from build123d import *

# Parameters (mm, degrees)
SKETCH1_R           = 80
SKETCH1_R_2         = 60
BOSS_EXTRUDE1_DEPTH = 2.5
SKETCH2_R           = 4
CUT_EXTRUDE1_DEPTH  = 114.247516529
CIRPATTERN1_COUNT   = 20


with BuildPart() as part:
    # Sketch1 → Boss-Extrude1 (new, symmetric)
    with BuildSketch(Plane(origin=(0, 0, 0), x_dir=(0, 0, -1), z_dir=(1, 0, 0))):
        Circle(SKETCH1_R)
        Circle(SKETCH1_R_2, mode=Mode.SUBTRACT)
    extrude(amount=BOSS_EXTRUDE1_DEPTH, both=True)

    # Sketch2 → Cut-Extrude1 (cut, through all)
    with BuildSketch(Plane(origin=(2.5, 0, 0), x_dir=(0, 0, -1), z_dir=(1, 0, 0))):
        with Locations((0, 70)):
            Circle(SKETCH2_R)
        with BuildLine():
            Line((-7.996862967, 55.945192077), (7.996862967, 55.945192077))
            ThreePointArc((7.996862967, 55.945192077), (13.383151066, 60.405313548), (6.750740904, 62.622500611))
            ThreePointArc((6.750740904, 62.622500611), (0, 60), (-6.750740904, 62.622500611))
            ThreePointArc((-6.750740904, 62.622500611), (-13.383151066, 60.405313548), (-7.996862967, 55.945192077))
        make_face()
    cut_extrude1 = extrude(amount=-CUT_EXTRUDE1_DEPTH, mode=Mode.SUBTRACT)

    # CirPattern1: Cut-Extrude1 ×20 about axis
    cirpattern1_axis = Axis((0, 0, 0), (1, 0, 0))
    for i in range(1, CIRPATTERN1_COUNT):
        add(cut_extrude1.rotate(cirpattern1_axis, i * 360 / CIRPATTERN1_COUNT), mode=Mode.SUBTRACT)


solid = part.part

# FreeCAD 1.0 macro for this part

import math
import FreeCAD as App
import Part
import Sketcher

V = App.Vector

doc = App.newDocument("Part")
body = doc.addObject("PartDesign::Body", "Body")

sketch1 = doc.addObject("Sketcher::SketchObject", "Sketch")
body.addObject(sketch1)
sketch1.AttachmentSupport = (doc.YZ_Plane, [""])
sketch1.MapMode = "FlatFace"
sketch1.addGeometry([
    Part.Circle(V(0, 0, 0), V(0, 0, 1), 80),
    Part.Circle(V(0, 0, 0), V(0, 0, 1), 60),
], False)
sketch1.addConstraint([
    Sketcher.Constraint("Coincident", 0, 3, -1, 1),
    Sketcher.Constraint("Coincident", 1, 3, -1, 1),
    Sketcher.Constraint("Diameter", 0, 160.0),
    Sketcher.Constraint("Diameter", 1, 120.0),
])
pad1 = doc.addObject("PartDesign::Pad", "Pad")
body.addObject(pad1)
pad1.Profile = sketch1
pad1.Length = 5
pad1.Midplane = True

sketch2 = doc.addObject("Sketcher::SketchObject", "Sketch001")
body.addObject(sketch2)
sketch2.AttachmentSupport = (doc.YZ_Plane, [""])
sketch2.MapMode = "FlatFace"
sketch2.AttachmentOffset = App.Placement(V(0, 0, 2.5), App.Rotation())
sketch2.addGeometry([
    Part.Circle(V(70, 0, 0), V(0, 0, 1), 4),
    Part.LineSegment(V(55.945192, 7.996863, 0), V(55.945192, -7.996863, 0)),
    Part.ArcOfCircle(Part.Circle(V(59.671501, -9.451037, 0), V(0, 0, 1), 4), math.radians(158.682021), math.radians(402.459904)),
    Part.ArcOfCircle(Part.Circle(V(70, 0, 0), V(0, 0, 1), 10), math.radians(137.540096), math.radians(222.459904)),
    Part.ArcOfCircle(Part.Circle(V(59.671501, 9.451037, 0), V(0, 0, 1), 4), math.radians(-42.459904), math.radians(201.317979)),
], False)
sketch2.addConstraint([
    Sketcher.Constraint("Coincident", 1, 2, 2, 1),
    Sketcher.Constraint("Tangent", 2, 2, 3, 2),
    Sketcher.Constraint("Tangent", 3, 1, 4, 1),
    Sketcher.Constraint("Coincident", 4, 2, 1, 1),
    Sketcher.Constraint("Vertical", 1),
    Sketcher.Constraint("Coincident", 3, 3, 0, 3),
    Sketcher.Constraint("Equal", 0, 2),
    Sketcher.Constraint("Equal", 2, 4),
    Sketcher.Constraint("Symmetric", 2, 3, 4, 3, -1),
    Sketcher.Constraint("Diameter", 0, 8.0),
    Sketcher.Constraint("Radius", 3, 10.0),
    Sketcher.Constraint("DistanceX", -1, 1, 0, 3, 70.0),
    Sketcher.Constraint("DistanceX", 2, 3, 2, 2, 2.951),
    Sketcher.Constraint("DistanceY", 1, 2, 4, 3, 17.4479),
])
pocket1 = doc.addObject("PartDesign::Pocket", "Pocket")
body.addObject(pocket1)
pocket1.Profile = sketch2
pocket1.Type = "ThroughAll"
doc.recompute()

polarpattern = doc.addObject("PartDesign::PolarPattern", "PolarPattern")
body.addObject(polarpattern)
polarpattern.Originals = [pocket1]
polarpattern.Axis = (doc.X_Axis, [""])
polarpattern.Angle = 360
polarpattern.Occurrences = 20
body.Tip = polarpattern

doc.recompute()
